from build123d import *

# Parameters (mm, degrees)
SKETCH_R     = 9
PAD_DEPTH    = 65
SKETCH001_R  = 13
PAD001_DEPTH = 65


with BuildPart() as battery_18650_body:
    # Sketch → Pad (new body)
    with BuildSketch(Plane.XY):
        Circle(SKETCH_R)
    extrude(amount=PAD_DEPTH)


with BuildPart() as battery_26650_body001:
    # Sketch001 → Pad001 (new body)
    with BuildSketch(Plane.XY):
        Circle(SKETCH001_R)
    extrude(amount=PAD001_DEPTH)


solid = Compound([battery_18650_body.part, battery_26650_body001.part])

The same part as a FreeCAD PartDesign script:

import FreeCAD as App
import Part
import Sketcher
from FreeCAD import Vector

doc = App.newDocument("Part")
body = doc.addObject("PartDesign::Body", "Body")

# Sketch on XY plane
sketch1 = doc.addObject("Sketcher::SketchObject", "Sketch")
body.addObject(sketch1)
sketch1.AttachmentSupport = (doc.XY_Plane, [""])
sketch1.MapMode = "FlatFace"
sketch1.addGeometry(Part.Circle(Vector(0, 0, 0), Vector(0, 0, 1), 9), False)
sketch1.addConstraint([
    Sketcher.Constraint("Coincident", 0, 3, -1, 1),
    Sketcher.Constraint("Diameter", 0, 18.0),
])
pad1 = doc.addObject("PartDesign::Pad", "Pad")
body.addObject(pad1)
pad1.Profile = sketch1
pad1.Length = 65
body2 = doc.addObject("PartDesign::Body", "Body001")

# Sketch on XY plane
sketch2 = doc.addObject("Sketcher::SketchObject", "Sketch001")
body2.addObject(sketch2)
sketch2.AttachmentSupport = (doc.getObject("XY_Plane001"), [""])
sketch2.MapMode = "FlatFace"
sketch2.addGeometry(Part.Circle(Vector(0, 0, 0), Vector(0, 0, 1), 13), False)
sketch2.addConstraint([
    Sketcher.Constraint("Coincident", 0, 3, -1, 1),
    Sketcher.Constraint("Diameter", 0, 26.0),
])
pad2 = doc.addObject("PartDesign::Pad", "Pad001")
body2.addObject(pad2)
pad2.Profile = sketch2
pad2.Length = 65

doc.recompute()
